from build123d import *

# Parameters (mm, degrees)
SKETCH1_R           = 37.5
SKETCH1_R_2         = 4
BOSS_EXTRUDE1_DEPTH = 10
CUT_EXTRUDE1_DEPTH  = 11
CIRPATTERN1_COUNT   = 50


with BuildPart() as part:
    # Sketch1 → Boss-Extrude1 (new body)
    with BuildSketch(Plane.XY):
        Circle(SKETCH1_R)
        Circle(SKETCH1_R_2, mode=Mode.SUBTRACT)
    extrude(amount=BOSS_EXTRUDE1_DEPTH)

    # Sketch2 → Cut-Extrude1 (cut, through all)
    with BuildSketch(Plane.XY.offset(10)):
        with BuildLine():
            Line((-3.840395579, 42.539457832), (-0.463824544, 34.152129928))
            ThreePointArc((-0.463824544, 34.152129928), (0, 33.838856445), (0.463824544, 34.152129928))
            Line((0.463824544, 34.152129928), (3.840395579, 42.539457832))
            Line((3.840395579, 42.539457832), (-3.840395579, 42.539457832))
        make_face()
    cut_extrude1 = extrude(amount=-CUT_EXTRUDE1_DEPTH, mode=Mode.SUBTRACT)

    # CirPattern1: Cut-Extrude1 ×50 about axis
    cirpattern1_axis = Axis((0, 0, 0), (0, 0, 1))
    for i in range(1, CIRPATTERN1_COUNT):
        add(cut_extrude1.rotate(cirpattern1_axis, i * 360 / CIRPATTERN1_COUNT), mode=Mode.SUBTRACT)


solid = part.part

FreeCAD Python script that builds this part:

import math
import FreeCAD as App
import Part
import Sketcher
from FreeCAD import Vector

doc = App.newDocument("Part")
body = doc.addObject("PartDesign::Body", "Body")

# Sketch on XY plane
sketch1 = body.newObject("Sketcher::SketchObject", "Sketch")
sketch1.AttachmentSupport = (doc.getObject("XY_Plane"), [""])
sketch1.MapMode = "FlatFace"
sketch1.addGeometry(Part.Circle(Vector(0, 0, 0), Vector(0, 0, 1), 37.5), False)
sketch1.addGeometry(Part.Circle(Vector(0, 0, 0), Vector(0, 0, 1), 4), False)
sketch1.addConstraint(Sketcher.Constraint("Coincident", 0, 3, -1, 1))
sketch1.addConstraint(Sketcher.Constraint("Coincident", 1, 3, -1, 1))
sketch1.addConstraint(Sketcher.Constraint("Diameter", 0, 75.0))
sketch1.addConstraint(Sketcher.Constraint("Diameter", 1, 8.0))
pad1 = body.newObject("PartDesign::Pad", "Pad")
pad1.Profile = sketch1
pad1.Length = 10

# Sketch on XY plane
sketch2 = body.newObject("Sketcher::SketchObject", "Sketch001")
sketch2.AttachmentSupport = (doc.getObject("XY_Plane"), [""])
sketch2.MapMode = "FlatFace"
sketch2.AttachmentOffset = App.Placement(Vector(0, 0, 10), App.Rotation())
sketch2.addGeometry(Part.LineSegment(Vector(-3.840396, 42.539458, 0), Vector(-0.463825, 34.15213, 0)), False)
sketch2.addGeometry(Part.ArcOfCircle(Part.Circle(Vector(0, 34.338856, 0), Vector(0, 0, 1), 0.5), math.radians(-158.071267), math.radians(-21.928733)), False)
sketch2.addGeometry(Part.LineSegment(Vector(0.463825, 34.15213, 0), Vector(3.840396, 42.539458, 0)), False)
sketch2.addGeometry(Part.LineSegment(Vector(3.840396, 42.539458, 0), Vector(-3.840396, 42.539458, 0)), False)
sketch2.addConstraint(Sketcher.Constraint("Tangent", 0, 2, 1, 1))
sketch2.addConstraint(Sketcher.Constraint("Tangent", 1, 2, 2, 1))
sketch2.addConstraint(Sketcher.Constraint("Coincident", 2, 2, 3, 1))
sketch2.addConstraint(Sketcher.Constraint("Coincident", 3, 2, 0, 1))
sketch2.addConstraint(Sketcher.Constraint("Horizontal", 3))
sketch2.addConstraint(Sketcher.Constraint("Symmetric", 0, 2, 1, 2, -2))
sketch2.addConstraint(Sketcher.Constraint("Radius", 1, 0.5))
sketch2.addConstraint(Sketcher.Constraint("DistanceX", 3, 2, 3, 1, 7.680791))
sketch2.addConstraint(Sketcher.Constraint("DistanceY", 1, 3, 2, 2, 8.200601))
sketch2.addConstraint(Sketcher.Constraint("DistanceY", -1, 1, 0, 2, 34.15213))
pocket1 = body.newObject("PartDesign::Pocket", "Pocket")
pocket1.Profile = sketch2
pocket1.Type = "ThroughAll"
doc.recompute()

polarpattern = body.newObject("PartDesign::PolarPattern", "PolarPattern")
polarpattern.Originals = [pocket1]
polarpattern.Axis = (doc.getObject("Z_Axis"), [""])
polarpattern.Angle = 360
polarpattern.Occurrences = 50
body.Tip = polarpattern

doc.recompute()
